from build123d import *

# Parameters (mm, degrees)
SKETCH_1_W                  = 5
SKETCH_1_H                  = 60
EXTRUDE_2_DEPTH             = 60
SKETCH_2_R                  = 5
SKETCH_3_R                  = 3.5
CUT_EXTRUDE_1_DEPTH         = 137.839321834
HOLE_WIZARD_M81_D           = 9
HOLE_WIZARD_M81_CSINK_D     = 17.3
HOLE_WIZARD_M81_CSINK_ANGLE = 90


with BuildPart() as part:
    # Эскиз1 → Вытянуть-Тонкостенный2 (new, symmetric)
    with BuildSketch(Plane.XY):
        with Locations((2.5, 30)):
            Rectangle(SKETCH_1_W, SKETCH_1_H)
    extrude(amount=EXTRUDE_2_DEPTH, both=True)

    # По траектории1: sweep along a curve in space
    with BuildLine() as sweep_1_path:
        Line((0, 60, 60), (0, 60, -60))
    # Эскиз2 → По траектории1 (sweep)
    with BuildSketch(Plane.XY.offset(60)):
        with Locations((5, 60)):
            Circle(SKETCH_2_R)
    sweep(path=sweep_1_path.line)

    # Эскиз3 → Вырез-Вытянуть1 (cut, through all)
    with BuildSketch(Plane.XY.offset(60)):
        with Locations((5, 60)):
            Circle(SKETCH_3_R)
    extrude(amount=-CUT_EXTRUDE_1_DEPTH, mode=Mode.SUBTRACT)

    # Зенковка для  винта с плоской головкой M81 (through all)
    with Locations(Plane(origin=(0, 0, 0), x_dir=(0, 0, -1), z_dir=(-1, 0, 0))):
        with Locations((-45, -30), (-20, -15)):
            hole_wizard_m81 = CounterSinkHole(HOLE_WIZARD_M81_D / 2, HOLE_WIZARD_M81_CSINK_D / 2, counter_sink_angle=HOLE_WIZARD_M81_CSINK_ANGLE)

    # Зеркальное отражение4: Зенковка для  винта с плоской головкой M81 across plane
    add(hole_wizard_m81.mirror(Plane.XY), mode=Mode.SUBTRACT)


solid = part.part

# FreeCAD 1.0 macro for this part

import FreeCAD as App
import Part
import Sketcher
from FreeCAD import Vector
Q = App.Units.Quantity


def add_polygon(sketch, points):
    """Adds a closed chain of lines whose ends are joined by coincident constraints."""
    first, n = sketch.GeometryCount, len(points)
    for a, b in zip(points, points[1:] + points[:1]):
        sketch.addGeometry(Part.LineSegment(App.Vector(*a, 0), App.Vector(*b, 0)), False)
    for i in range(n):
        sketch.addConstraint(Sketcher.Constraint("Coincident", first + i, 2, first + (i + 1) % n, 1))

doc = App.newDocument("Part")
body = doc.addObject("PartDesign::Body", "Body")

# Sketch on XY plane
sketch1 = body.newObject("Sketcher::SketchObject", "Sketch")
sketch1.AttachmentSupport = (doc.getObject("XY_Plane"), [""])
sketch1.MapMode = "FlatFace"
add_polygon(sketch1, [(0, 60), (0, 0), (5, 0), (5, 60)])  # lines 0-3
sketch1.addConstraint(Sketcher.Constraint("Vertical", 0))
sketch1.addConstraint(Sketcher.Constraint("Horizontal", 1))
sketch1.addConstraint(Sketcher.Constraint("Vertical", 2))
sketch1.addConstraint(Sketcher.Constraint("Horizontal", 3))
sketch1.addConstraint(Sketcher.Constraint("Coincident", 0, 2, -1, 1))
sketch1.addConstraint(Sketcher.Constraint("DistanceX", 1, 1, 1, 2, Q("5 mm")))
sketch1.addConstraint(Sketcher.Constraint("DistanceY", 0, 2, 0, 1, Q("60 mm")))
pad1 = body.newObject("PartDesign::Pad", "Pad")
pad1.Profile = sketch1
pad1.Length = 120
pad1.Midplane = True

# Sketch on XY plane
sketch2 = body.newObject("Sketcher::SketchObject", "Sketch001")
sketch2.AttachmentSupport = (doc.getObject("XY_Plane"), [""])
sketch2.MapMode = "FlatFace"
sketch2.AttachmentOffset = App.Placement(Vector(0, 0, 60), App.Rotation())
sketch2.addGeometry(Part.Circle(Vector(5, 60, 0), Vector(0, 0, 1), 5), False)
sketch2.addConstraint(Sketcher.Constraint("Diameter", 0, Q("10 mm")))
sketch2.addConstraint(Sketcher.Constraint("DistanceX", -1, 1, 0, 3, Q("5 mm")))
sketch2.addConstraint(Sketcher.Constraint("DistanceY", -1, 1, 0, 3, Q("60 mm")))

# Sketch on XZ plane
sketch3 = body.newObject("Sketcher::SketchObject", "Sketch002")
sketch3.AttachmentSupport = (doc.getObject("XZ_Plane"), [""])
sketch3.MapMode = "FlatFace"
sketch3.AttachmentOffset = App.Placement(Vector(0, 0, -60), App.Rotation())
sketch3.addGeometry(Part.LineSegment(Vector(0, 60, 0), Vector(0, -60, 0)), False)
sketch3.addConstraint(Sketcher.Constraint("Vertical", 0))
sketch3.addConstraint(Sketcher.Constraint("Symmetric", 0, 1, 0, 2, -1, 1))
sketch3.addConstraint(Sketcher.Constraint("DistanceY", 0, 2, 0, 1, Q("120 mm")))
doc.recompute()

additivepipe = body.newObject("PartDesign::AdditivePipe", "AdditivePipe")
additivepipe.Profile = sketch2
additivepipe.Spine = (sketch3, ["Edge1"])

# Sketch on XY plane
sketch4 = body.newObject("Sketcher::SketchObject", "Sketch003")
sketch4.AttachmentSupport = (doc.getObject("XY_Plane"), [""])
sketch4.MapMode = "FlatFace"
sketch4.AttachmentOffset = App.Placement(Vector(0, 0, 60), App.Rotation())
sketch4.addGeometry(Part.Circle(Vector(5, 60, 0), Vector(0, 0, 1), 3.5), False)
sketch4.addConstraint(Sketcher.Constraint("Diameter", 0, Q("7 mm")))
sketch4.addConstraint(Sketcher.Constraint("DistanceX", -1, 1, 0, 3, Q("5 mm")))
sketch4.addConstraint(Sketcher.Constraint("DistanceY", -1, 1, 0, 3, Q("60 mm")))
pocket1 = body.newObject("PartDesign::Pocket", "Pocket")
pocket1.Profile = sketch4
pocket1.Type = "ThroughAll"

# Sketch on YZ plane
sketch5 = body.newObject("Sketcher::SketchObject", "Sketch004")
sketch5.AttachmentSupport = (doc.getObject("YZ_Plane"), [""])
sketch5.MapMode = "FlatFace"
sketch5.addGeometry(Part.Circle(Vector(30, 45, 0), Vector(0, 0, 1), 4.5), False)
sketch5.addGeometry(Part.Circle(Vector(15, 20, 0), Vector(0, 0, 1), 4.5), False)
sketch5.addConstraint(Sketcher.Constraint("Equal", 0, 1))
sketch5.addConstraint(Sketcher.Constraint("Diameter", 0, Q("9 mm")))
sketch5.addConstraint(Sketcher.Constraint("DistanceX", -1, 1, 0, 3, Q("30 mm")))
sketch5.addConstraint(Sketcher.Constraint("DistanceY", -1, 1, 0, 3, Q("45 mm")))
sketch5.addConstraint(Sketcher.Constraint("DistanceX", -1, 1, 1, 3, Q("15 mm")))
sketch5.addConstraint(Sketcher.Constraint("DistanceY", -1, 1, 1, 3, Q("20 mm")))
doc.recompute()
hole = body.newObject("PartDesign::Hole", "Hole")
hole.Profile = sketch5
hole.ThreadType = "None"
hole.Diameter = 9
hole.DepthType = "ThroughAll"
hole.HoleCutType = "Countersink"
hole.HoleCutDiameter = 17.3
hole.HoleCutCountersinkAngle = 90
hole.Reversed = True
doc.recompute()

mirrored = body.newObject("PartDesign::Mirrored", "Mirrored")
mirrored.Originals = [hole]
mirrored.MirrorPlane = (doc.getObject("XY_Plane"), [""])
body.Tip = mirrored

doc.recompute()
